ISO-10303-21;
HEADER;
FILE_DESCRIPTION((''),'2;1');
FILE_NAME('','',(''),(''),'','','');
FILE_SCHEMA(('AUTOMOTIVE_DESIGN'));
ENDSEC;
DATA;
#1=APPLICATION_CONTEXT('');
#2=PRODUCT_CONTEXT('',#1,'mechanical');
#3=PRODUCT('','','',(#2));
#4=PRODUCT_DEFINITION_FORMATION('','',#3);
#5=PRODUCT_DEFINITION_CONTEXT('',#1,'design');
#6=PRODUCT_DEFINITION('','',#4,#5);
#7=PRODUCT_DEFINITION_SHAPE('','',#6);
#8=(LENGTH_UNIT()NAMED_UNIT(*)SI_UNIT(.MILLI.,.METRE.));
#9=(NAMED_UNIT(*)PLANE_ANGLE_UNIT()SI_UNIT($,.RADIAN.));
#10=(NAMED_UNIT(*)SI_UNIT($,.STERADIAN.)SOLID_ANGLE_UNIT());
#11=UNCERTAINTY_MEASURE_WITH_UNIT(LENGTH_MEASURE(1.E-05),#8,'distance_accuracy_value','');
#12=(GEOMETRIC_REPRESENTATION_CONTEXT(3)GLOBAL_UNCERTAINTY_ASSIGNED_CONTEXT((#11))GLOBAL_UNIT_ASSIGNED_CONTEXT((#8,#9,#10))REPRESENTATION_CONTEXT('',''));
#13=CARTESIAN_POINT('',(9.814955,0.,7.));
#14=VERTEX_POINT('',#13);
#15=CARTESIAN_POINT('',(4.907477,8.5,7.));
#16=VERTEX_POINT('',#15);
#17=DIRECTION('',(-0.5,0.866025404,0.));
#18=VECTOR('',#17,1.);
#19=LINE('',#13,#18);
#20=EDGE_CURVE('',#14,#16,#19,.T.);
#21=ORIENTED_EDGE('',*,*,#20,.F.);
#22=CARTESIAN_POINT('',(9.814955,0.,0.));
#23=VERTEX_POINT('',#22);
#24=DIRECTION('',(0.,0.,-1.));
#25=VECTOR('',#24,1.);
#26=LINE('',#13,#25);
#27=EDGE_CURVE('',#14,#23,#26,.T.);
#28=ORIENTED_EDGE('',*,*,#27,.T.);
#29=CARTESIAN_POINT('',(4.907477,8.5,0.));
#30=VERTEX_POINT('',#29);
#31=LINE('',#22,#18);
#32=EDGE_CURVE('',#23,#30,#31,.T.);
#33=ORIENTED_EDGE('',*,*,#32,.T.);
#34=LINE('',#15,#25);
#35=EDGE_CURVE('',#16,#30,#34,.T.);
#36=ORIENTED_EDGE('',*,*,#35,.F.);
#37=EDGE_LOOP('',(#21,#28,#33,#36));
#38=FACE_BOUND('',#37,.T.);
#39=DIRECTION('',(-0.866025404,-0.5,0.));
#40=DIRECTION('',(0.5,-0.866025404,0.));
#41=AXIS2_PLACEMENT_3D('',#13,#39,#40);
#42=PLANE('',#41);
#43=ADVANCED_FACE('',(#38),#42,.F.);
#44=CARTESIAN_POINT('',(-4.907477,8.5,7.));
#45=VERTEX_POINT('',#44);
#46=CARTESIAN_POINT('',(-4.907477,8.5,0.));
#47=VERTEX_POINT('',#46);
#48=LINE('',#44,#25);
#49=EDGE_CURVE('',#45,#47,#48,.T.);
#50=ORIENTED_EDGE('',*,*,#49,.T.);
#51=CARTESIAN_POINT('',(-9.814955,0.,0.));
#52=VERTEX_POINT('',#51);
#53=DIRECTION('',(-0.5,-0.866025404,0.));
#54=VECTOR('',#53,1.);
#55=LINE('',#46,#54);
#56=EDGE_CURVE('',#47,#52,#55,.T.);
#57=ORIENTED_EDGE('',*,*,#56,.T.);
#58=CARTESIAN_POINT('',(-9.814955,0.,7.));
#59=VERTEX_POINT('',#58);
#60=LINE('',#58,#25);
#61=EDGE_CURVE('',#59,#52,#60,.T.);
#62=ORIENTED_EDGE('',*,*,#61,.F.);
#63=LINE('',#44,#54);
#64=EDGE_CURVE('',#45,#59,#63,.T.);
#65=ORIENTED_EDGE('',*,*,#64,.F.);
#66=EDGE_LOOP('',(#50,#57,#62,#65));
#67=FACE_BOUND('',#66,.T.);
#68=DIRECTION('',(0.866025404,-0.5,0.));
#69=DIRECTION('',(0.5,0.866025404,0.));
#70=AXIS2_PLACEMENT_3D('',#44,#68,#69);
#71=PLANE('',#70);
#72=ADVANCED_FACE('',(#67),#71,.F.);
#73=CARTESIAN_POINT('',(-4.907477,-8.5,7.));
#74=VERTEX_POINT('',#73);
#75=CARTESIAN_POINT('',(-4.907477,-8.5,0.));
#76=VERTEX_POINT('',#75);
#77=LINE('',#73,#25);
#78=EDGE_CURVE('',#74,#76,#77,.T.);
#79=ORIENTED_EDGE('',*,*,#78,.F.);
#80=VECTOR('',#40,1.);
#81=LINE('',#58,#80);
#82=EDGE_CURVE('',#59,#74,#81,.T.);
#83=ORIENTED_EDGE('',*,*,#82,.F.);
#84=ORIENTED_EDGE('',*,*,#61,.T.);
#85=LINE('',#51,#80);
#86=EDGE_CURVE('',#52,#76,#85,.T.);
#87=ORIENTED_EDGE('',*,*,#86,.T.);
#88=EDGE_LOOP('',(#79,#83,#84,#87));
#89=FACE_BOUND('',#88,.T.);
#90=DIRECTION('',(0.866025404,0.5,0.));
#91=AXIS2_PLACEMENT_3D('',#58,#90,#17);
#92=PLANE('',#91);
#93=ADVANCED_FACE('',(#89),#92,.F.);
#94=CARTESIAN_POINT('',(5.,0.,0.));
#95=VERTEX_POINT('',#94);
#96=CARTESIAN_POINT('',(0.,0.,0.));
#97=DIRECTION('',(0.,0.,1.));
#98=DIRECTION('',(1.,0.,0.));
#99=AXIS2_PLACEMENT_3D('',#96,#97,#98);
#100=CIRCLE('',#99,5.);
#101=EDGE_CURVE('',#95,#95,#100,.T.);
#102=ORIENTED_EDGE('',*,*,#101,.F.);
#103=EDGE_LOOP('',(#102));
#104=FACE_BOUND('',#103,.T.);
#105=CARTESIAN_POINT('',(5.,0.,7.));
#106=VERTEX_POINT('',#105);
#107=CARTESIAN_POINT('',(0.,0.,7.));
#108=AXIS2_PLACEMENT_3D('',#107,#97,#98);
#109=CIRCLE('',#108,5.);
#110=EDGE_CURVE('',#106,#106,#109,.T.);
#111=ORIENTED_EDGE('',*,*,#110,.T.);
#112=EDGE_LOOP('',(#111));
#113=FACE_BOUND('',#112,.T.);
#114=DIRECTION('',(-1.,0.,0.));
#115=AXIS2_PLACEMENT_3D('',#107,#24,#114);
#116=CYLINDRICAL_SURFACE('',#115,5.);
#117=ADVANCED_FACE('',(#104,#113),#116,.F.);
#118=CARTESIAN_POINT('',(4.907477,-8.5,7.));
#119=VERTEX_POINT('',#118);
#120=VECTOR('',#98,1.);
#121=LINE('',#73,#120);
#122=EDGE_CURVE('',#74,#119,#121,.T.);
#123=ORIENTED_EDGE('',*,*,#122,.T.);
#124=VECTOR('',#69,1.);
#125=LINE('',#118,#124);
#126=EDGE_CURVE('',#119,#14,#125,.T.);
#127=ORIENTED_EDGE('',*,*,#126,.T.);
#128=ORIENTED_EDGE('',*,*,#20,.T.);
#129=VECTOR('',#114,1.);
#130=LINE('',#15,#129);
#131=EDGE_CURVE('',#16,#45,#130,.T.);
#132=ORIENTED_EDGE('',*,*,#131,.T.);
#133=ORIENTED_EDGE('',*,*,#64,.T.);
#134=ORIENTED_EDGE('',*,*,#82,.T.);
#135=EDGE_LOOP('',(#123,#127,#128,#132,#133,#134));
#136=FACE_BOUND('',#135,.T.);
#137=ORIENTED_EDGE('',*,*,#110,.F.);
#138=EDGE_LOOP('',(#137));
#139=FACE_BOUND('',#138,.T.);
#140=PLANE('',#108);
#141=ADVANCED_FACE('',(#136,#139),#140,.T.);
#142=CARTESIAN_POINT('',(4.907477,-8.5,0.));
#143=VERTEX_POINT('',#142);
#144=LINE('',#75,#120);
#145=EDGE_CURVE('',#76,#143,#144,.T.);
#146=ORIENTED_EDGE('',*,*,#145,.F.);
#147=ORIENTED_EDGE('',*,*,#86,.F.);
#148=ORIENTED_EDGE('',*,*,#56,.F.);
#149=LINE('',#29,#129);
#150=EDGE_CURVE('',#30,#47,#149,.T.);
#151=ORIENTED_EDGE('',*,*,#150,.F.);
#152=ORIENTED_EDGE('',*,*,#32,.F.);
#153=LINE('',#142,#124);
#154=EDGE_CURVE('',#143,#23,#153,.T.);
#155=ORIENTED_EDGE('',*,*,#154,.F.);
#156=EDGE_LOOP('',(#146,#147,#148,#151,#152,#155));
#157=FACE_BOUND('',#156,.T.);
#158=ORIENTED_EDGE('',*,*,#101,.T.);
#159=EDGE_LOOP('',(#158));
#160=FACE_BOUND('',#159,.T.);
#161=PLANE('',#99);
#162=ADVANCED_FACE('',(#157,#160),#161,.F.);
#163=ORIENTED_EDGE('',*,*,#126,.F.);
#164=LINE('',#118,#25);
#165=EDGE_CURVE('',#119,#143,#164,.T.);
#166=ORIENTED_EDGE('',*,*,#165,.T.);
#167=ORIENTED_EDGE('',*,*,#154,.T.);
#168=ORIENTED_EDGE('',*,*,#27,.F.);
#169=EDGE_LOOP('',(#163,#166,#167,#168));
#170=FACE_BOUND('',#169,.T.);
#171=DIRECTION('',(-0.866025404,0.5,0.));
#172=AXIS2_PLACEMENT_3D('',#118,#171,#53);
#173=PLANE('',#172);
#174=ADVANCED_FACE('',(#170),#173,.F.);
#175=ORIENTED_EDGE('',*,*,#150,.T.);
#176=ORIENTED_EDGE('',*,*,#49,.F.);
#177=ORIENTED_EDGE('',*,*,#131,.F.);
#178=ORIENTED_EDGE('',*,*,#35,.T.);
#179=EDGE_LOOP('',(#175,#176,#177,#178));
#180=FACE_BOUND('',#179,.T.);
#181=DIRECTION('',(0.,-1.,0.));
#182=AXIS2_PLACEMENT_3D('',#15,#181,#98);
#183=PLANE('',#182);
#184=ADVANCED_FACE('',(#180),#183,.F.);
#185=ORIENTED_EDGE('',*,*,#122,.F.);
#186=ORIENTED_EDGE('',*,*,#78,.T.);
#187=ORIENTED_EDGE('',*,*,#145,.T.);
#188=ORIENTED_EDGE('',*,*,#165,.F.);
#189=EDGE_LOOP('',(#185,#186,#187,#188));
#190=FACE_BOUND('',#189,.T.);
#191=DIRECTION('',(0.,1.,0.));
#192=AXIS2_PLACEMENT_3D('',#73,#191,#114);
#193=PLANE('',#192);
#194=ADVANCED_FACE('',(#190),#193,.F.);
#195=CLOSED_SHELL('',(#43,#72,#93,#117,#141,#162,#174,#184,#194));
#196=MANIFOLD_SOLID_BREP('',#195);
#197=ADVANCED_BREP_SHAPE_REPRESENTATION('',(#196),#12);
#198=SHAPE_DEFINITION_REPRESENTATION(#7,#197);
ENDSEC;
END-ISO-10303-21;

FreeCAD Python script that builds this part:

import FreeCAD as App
import Part
import Sketcher
Q = App.Units.Quantity


def add_polygon(sketch, points):
    """Adds a closed chain of lines whose ends are joined by coincident constraints."""
    first, n = sketch.GeometryCount, len(points)
    for a, b in zip(points, points[1:] + points[:1]):
        sketch.addGeometry(Part.LineSegment(App.Vector(*a, 0), App.Vector(*b, 0)), False)
    for i in range(n):
        sketch.addConstraint(Sketcher.Constraint("Coincident", first + i, 2, first + (i + 1) % n, 1))

doc = App.newDocument("Part")
body = doc.addObject("PartDesign::Body", "Body")

sketch1 = body.newObject("Sketcher::SketchObject", "Sketch")
sketch1.AttachmentSupport = (doc.getObject("XY_Plane"), [""])
sketch1.MapMode = "FlatFace"
add_polygon(sketch1, [(9.814955, 0), (4.907477, 8.5), (-4.907477, 8.5), (-9.814955, 0), (-4.907477, -8.5), (4.907477, -8.5)])
sketch1.addGeometry(Part.Circle(App.Vector(0, 0, 0), App.Vector(0, 0, 1), 5), False)
sketch1.addConstraint([
    Sketcher.Constraint("Horizontal", 1),
    Sketcher.Constraint("Horizontal", 4),
    Sketcher.Constraint("Coincident", 6, 3, -1, 1),
    Sketcher.Constraint("Symmetric", 0, 2, 3, 2, -1, 1),
    Sketcher.Constraint("Symmetric", 2, 2, 5, 2, -1, 1),
    Sketcher.Constraint("PointOnObject", 2, 2, -1),
    Sketcher.Constraint("Parallel", 2, 5),
    Sketcher.Constraint("Vertical", 1, 2, 3, 2),
    Sketcher.Constraint("Diameter", 6, Q("10 mm")),
    Sketcher.Constraint("Angle", 0, Q("120 deg")),
    Sketcher.Constraint("DistanceY", 3, 2, 1, 2, Q("17 mm")),
    Sketcher.Constraint("DistanceX", 1, 2, 1, 1, Q("9.814955 mm")),
])
pad1 = body.newObject("PartDesign::Pad", "Pad")
pad1.Profile = sketch1
pad1.Length = 7

doc.recompute()
